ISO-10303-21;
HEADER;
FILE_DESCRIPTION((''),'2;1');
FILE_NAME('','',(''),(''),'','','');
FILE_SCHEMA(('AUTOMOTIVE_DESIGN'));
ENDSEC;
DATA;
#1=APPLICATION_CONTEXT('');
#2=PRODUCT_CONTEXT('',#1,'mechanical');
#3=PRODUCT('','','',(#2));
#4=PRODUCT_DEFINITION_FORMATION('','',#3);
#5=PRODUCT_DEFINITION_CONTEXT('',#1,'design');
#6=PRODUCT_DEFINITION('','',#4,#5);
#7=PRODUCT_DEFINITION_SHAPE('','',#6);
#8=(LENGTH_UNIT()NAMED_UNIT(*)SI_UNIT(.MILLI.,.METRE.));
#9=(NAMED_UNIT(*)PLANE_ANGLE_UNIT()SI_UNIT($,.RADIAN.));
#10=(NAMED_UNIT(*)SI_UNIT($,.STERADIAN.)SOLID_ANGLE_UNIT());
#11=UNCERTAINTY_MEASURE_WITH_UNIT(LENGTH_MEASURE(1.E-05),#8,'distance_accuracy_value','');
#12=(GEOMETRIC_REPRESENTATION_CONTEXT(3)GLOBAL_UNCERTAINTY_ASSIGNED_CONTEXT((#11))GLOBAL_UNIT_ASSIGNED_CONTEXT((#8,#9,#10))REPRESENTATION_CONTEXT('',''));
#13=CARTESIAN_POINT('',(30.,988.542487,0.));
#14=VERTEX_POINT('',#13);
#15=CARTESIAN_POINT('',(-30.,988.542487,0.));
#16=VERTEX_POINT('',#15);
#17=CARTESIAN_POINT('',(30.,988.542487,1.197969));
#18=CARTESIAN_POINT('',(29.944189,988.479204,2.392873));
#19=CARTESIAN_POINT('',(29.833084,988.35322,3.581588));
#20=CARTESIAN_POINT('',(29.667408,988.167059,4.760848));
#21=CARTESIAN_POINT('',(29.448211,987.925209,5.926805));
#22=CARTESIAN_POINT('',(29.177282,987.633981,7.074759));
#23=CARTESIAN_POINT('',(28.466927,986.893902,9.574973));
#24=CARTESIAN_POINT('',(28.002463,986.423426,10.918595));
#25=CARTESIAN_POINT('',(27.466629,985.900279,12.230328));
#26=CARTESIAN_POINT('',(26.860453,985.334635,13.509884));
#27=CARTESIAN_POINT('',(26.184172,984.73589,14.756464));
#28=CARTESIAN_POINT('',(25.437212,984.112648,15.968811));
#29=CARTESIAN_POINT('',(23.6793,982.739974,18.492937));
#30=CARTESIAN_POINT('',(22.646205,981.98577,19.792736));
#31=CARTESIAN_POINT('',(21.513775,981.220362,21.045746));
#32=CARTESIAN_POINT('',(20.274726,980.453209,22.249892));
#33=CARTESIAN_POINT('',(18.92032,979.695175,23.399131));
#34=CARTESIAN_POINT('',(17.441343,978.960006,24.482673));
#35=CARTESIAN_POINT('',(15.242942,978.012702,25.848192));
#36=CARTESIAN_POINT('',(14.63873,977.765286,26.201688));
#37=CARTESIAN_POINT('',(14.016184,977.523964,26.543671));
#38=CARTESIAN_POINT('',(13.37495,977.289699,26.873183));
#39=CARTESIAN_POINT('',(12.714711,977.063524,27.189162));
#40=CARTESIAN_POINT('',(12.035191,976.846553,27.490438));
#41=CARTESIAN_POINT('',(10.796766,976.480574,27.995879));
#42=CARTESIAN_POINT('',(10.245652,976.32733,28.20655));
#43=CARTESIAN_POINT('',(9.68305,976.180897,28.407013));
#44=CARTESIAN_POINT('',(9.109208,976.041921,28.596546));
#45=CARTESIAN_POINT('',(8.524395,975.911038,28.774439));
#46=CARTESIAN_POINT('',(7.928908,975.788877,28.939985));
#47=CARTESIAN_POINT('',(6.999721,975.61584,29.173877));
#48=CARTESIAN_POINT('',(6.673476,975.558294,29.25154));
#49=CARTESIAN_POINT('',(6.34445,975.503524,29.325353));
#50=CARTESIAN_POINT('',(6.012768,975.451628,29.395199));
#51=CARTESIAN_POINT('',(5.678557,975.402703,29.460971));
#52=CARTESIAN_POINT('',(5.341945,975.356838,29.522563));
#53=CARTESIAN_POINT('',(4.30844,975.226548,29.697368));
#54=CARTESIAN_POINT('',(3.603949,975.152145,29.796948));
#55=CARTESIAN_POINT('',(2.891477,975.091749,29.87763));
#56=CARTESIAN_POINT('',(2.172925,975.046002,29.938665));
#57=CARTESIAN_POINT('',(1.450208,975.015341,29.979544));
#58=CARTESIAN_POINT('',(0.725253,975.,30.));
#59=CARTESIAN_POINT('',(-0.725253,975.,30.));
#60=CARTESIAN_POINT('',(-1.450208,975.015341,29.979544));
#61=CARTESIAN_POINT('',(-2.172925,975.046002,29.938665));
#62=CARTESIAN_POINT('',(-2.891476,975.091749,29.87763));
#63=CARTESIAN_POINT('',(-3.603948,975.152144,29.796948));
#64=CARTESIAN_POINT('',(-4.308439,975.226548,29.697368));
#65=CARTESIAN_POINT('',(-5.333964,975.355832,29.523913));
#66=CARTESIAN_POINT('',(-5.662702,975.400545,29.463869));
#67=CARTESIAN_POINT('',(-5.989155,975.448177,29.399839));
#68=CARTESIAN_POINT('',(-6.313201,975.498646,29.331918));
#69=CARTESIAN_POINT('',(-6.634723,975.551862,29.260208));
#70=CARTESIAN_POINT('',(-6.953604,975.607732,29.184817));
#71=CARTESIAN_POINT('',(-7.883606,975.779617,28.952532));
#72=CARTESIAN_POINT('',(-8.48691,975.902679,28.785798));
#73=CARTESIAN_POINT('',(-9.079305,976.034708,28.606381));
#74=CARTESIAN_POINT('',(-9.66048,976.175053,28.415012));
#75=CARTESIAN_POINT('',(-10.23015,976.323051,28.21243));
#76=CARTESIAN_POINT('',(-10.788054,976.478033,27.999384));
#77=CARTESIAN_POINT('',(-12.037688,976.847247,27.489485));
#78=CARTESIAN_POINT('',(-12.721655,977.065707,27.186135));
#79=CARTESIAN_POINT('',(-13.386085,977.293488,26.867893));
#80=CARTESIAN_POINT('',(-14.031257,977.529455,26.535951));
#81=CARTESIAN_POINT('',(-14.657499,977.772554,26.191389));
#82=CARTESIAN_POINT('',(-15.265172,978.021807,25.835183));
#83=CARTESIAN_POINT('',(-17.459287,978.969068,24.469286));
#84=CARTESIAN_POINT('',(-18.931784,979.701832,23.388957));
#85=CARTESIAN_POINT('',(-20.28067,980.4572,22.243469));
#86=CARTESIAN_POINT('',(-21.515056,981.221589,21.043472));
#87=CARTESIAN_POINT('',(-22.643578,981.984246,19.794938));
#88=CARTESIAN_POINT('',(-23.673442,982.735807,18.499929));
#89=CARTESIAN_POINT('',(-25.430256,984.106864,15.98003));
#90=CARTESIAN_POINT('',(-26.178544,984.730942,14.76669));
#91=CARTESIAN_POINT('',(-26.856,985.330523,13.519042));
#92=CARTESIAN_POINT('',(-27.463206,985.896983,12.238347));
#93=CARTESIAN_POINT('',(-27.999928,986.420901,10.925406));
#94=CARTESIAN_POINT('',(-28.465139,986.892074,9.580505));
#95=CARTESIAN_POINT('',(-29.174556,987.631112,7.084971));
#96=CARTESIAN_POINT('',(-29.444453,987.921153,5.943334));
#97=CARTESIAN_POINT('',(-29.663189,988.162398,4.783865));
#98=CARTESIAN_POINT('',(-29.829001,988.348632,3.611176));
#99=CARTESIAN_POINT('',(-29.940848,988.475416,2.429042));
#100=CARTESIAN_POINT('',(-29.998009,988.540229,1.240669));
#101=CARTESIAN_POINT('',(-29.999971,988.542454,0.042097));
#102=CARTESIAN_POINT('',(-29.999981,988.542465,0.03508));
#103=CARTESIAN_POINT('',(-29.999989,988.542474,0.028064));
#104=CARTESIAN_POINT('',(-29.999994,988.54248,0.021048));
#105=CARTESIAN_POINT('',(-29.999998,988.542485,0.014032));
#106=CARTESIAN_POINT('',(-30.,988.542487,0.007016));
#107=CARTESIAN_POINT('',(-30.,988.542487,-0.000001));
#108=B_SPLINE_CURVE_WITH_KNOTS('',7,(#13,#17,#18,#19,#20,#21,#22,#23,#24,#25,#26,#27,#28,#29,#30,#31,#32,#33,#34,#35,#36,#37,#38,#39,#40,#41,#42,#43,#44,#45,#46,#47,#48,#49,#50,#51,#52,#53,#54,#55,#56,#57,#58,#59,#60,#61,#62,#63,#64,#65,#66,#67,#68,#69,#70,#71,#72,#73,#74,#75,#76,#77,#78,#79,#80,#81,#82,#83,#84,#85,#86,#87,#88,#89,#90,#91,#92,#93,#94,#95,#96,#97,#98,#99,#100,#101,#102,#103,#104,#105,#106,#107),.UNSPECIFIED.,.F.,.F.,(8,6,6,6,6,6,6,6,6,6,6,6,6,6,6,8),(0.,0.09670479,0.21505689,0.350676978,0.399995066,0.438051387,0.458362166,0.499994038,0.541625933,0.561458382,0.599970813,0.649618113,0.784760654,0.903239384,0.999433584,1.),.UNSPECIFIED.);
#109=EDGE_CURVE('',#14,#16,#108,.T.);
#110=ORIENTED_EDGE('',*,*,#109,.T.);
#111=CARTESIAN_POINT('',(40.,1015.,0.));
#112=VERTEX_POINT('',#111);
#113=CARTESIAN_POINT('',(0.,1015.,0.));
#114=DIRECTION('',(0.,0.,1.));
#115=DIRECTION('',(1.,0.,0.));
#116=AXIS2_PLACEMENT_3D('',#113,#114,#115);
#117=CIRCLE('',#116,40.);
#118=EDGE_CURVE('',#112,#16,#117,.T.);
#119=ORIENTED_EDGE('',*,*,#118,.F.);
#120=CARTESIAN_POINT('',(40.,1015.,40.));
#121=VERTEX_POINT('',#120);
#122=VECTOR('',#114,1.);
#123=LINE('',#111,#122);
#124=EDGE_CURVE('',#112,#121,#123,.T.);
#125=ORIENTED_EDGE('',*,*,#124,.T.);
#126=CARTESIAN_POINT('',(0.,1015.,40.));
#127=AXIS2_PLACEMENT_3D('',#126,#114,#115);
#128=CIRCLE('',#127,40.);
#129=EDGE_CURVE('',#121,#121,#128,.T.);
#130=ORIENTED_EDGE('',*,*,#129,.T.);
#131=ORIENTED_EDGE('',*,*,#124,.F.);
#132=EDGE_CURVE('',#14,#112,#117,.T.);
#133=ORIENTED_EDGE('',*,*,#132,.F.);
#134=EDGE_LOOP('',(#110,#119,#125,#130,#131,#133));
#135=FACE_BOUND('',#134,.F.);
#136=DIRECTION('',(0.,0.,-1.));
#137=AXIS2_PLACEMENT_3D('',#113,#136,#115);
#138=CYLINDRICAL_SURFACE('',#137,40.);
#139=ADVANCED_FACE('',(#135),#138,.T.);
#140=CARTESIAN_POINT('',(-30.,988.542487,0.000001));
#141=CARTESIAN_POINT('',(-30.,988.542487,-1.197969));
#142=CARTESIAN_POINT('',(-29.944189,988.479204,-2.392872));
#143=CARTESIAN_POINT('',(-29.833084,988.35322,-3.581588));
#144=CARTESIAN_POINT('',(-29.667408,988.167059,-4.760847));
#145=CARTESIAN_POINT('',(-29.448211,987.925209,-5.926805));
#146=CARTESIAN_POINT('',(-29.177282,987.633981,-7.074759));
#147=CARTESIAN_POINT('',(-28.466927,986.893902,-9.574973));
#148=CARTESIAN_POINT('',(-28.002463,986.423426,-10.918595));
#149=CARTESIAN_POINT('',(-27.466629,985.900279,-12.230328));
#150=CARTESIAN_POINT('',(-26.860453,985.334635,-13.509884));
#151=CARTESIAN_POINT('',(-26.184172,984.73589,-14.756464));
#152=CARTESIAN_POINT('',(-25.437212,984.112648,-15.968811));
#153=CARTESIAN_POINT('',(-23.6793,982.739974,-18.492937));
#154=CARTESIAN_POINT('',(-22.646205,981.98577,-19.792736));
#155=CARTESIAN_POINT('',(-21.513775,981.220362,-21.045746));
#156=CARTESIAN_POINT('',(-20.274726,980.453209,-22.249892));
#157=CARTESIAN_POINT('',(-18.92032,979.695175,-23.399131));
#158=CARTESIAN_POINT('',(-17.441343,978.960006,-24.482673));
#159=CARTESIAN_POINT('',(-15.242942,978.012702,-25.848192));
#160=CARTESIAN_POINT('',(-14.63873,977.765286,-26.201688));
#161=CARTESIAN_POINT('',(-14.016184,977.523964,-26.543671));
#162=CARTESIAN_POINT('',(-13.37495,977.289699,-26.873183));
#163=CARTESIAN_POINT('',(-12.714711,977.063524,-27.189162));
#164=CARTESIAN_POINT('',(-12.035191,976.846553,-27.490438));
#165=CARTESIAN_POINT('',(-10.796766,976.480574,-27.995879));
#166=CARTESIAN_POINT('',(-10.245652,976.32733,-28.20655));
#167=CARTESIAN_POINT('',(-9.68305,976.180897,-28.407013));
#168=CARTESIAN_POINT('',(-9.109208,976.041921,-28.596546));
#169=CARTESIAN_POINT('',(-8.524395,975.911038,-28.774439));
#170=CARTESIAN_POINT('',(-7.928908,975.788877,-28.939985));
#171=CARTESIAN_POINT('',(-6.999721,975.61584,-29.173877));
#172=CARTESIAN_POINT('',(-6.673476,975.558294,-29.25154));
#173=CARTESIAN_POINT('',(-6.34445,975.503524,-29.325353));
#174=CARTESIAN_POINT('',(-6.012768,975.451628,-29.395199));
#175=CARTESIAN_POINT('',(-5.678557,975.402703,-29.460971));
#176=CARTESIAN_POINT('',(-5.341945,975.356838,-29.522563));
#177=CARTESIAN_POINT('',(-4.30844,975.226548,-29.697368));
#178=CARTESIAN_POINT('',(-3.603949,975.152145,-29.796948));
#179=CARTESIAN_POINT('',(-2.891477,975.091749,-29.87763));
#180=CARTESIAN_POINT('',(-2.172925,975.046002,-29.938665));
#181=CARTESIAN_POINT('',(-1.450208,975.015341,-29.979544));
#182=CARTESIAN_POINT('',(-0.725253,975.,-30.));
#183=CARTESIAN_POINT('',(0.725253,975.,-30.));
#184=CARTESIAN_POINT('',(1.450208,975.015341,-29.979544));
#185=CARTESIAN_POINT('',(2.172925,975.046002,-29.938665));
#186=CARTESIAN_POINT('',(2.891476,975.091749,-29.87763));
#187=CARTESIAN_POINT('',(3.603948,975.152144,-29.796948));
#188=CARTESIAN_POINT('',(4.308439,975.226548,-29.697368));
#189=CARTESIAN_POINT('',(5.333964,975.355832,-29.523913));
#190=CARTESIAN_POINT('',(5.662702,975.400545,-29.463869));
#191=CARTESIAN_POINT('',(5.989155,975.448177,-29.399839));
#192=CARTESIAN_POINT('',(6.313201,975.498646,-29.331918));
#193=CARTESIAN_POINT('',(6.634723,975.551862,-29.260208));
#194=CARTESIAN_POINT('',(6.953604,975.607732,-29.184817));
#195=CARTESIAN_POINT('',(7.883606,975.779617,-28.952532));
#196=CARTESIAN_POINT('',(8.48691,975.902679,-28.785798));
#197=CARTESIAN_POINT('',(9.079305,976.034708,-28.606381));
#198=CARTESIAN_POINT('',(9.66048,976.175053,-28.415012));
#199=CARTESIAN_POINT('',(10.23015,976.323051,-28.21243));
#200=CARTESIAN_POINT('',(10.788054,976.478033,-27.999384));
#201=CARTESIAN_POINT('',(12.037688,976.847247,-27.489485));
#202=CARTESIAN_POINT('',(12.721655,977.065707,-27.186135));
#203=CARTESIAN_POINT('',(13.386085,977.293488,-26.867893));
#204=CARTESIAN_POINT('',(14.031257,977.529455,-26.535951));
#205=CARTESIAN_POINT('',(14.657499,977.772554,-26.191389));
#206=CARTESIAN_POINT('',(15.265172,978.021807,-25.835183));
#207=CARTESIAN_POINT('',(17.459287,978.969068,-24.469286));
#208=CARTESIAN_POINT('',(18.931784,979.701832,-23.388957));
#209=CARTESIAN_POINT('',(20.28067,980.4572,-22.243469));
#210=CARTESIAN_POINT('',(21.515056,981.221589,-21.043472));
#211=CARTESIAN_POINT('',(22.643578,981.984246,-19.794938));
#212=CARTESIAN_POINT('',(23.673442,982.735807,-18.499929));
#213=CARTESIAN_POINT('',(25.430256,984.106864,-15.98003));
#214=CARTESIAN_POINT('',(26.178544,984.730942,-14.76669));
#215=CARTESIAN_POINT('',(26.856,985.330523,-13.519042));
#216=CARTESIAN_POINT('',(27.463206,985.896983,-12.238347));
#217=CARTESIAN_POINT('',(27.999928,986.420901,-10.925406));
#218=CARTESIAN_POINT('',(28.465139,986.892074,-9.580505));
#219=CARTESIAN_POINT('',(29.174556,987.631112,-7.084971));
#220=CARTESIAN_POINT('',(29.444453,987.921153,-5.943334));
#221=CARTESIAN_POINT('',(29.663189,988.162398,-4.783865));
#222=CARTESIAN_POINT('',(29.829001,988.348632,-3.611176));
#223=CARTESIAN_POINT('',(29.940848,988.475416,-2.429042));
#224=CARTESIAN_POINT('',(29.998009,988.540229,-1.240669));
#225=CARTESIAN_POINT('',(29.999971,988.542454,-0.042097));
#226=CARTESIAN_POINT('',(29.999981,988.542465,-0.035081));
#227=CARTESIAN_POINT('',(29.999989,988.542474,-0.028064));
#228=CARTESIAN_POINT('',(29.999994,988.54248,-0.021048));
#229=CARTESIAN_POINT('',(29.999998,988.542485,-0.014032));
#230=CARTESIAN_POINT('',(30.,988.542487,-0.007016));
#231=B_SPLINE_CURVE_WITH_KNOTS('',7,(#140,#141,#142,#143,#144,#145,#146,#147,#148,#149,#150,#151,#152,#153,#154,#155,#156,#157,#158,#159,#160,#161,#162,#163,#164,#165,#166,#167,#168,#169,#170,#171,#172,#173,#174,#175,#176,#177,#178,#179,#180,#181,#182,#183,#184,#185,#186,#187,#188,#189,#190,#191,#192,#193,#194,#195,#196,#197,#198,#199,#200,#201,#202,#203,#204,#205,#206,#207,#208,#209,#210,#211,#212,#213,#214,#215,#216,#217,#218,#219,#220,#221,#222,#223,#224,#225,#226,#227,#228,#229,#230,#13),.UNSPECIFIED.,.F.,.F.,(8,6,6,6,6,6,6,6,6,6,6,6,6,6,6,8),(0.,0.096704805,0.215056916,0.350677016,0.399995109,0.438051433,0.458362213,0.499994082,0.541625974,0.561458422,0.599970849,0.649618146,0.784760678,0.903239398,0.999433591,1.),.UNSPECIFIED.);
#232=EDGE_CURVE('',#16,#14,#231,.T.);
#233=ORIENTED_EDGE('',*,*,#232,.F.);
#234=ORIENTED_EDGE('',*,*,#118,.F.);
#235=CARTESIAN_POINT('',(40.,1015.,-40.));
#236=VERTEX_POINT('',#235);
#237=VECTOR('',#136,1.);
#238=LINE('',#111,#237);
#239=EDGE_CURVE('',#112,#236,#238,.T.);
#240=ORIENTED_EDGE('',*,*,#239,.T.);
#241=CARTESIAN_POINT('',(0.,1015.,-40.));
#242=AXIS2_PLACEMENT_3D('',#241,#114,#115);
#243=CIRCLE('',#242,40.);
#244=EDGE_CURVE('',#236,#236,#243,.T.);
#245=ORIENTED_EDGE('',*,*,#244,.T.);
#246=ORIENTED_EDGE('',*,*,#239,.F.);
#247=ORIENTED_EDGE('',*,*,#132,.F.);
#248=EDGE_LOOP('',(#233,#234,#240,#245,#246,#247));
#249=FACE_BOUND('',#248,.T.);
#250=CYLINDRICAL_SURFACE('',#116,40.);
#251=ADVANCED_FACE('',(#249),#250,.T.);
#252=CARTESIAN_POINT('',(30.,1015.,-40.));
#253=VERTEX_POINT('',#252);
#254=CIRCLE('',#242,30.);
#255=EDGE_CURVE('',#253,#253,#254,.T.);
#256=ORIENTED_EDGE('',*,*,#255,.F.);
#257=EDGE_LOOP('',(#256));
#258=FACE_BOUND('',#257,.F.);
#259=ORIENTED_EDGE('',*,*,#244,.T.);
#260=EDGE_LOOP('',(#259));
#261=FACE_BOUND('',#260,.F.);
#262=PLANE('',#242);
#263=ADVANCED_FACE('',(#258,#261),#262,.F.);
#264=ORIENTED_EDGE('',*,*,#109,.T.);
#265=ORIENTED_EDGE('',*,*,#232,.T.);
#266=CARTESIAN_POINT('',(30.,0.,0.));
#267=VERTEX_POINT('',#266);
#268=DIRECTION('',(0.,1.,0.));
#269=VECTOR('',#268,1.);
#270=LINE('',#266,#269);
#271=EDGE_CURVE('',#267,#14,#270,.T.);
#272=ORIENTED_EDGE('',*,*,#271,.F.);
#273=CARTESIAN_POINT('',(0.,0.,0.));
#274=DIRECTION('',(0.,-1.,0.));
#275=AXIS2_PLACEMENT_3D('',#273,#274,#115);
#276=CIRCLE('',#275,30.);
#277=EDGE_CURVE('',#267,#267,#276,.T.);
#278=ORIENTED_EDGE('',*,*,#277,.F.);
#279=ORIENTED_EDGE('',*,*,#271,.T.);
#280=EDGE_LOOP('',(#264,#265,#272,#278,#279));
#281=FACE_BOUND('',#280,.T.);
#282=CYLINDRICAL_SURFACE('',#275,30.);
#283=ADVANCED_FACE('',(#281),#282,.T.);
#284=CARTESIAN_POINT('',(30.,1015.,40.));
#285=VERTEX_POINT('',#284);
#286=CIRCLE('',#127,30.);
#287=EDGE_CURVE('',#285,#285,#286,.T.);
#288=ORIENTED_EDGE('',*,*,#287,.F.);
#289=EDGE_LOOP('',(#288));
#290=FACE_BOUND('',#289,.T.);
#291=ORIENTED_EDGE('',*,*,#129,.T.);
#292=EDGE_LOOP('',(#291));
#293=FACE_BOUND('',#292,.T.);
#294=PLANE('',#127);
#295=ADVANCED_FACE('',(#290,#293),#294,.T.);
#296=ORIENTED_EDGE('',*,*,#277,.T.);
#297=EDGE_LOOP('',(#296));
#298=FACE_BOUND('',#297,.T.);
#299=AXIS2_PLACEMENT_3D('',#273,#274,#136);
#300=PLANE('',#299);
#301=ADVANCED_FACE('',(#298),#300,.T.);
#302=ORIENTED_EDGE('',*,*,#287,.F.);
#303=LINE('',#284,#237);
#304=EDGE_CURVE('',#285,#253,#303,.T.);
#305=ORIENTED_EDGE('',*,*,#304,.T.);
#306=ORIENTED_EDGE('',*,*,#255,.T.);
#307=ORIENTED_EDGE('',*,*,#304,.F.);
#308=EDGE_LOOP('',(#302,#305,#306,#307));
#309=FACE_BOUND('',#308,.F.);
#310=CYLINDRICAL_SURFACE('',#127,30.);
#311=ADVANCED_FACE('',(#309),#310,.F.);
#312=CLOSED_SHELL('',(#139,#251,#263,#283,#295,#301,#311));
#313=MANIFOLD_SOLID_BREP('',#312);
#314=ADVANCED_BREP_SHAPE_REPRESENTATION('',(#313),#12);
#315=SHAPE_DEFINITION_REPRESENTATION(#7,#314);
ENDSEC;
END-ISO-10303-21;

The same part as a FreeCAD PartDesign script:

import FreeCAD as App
import Part
import Sketcher

V = App.Vector
Q = App.Units.Quantity

doc = App.newDocument("Part")
body = doc.addObject("PartDesign::Body", "Body")

sketch1 = doc.addObject("Sketcher::SketchObject", "Sketch")
body.addObject(sketch1)
sketch1.AttachmentSupport = (doc.XZ_Plane, [""])
sketch1.MapMode = "FlatFace"
sketch1.addGeometry(Part.Circle(V(0, 0, 0), V(0, 0, 1), 30), False)
sketch1.addConstraint([
    Sketcher.Constraint("Coincident", 0, 3, -1, 1),
    Sketcher.Constraint("Diameter", 0, Q("60 mm")),
])
pad1 = doc.addObject("PartDesign::Pad", "Pad")
body.addObject(pad1)
pad1.Profile = sketch1
pad1.Length = 1015
pad1.Reversed = True

sketch2 = doc.addObject("Sketcher::SketchObject", "Sketch001")
body.addObject(sketch2)
sketch2.AttachmentSupport = (doc.XY_Plane, [""])
sketch2.MapMode = "FlatFace"
sketch2.addGeometry(Part.Circle(V(0, 1015, 0), V(0, 0, 1), 40), False)
sketch2.addConstraint([
    Sketcher.Constraint("PointOnObject", 0, 3, -2),
    Sketcher.Constraint("Diameter", 0, Q("80 mm")),
    Sketcher.Constraint("DistanceY", -1, 1, 0, 3, Q("1015 mm")),
])
pad2 = doc.addObject("PartDesign::Pad", "Pad001")
body.addObject(pad2)
pad2.Profile = sketch2
pad2.Length = 80
pad2.Midplane = True

sketch3 = doc.addObject("Sketcher::SketchObject", "Sketch002")
body.addObject(sketch3)
sketch3.AttachmentSupport = (doc.XY_Plane, [""])
sketch3.MapMode = "FlatFace"
sketch3.AttachmentOffset = App.Placement(V(0, 0, 40), App.Rotation())
sketch3.addGeometry(Part.Circle(V(0, 1015, 0), V(0, 0, 1), 30), False)
sketch3.addConstraint([
    Sketcher.Constraint("PointOnObject", 0, 3, -2),
    Sketcher.Constraint("Diameter", 0, Q("60 mm")),
    Sketcher.Constraint("DistanceY", -1, 1, 0, 3, Q("1015 mm")),
])
pocket1 = doc.addObject("PartDesign::Pocket", "Pocket")
body.addObject(pocket1)
pocket1.Profile = sketch3
pocket1.Type = "ThroughAll"

doc.recompute()
